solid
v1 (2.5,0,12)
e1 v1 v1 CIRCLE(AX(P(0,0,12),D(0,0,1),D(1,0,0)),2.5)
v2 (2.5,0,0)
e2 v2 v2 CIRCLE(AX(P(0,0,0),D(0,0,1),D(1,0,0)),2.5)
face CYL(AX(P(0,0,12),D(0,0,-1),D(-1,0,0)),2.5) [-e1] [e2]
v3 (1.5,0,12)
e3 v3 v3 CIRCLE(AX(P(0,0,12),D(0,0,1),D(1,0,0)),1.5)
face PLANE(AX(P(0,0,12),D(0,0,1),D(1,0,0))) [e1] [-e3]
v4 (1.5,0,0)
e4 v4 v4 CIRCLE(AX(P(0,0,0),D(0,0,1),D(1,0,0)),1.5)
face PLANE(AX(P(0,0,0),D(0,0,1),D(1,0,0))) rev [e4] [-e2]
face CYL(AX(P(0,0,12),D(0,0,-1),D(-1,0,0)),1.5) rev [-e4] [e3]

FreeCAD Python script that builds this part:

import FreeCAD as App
import Part
import Sketcher
from FreeCAD import Vector
Q = App.Units.Quantity

doc = App.newDocument("Part")
params = doc.addObject("Spreadsheet::Sheet", "Params")
for row, (alias, value) in enumerate([
    ("sketch1_diameter", "5 mm"),
    ("sketch1_diameter2", "3 mm"),
    ("pad1_length", "12 mm"),
], start=1):
    params.set(f"A{row}", alias)
    params.set(f"B{row}", "=" + value)
    params.setAlias(f"B{row}", alias)

body = doc.addObject("PartDesign::Body", "Body")

# Sketch on XY plane
sketch1 = body.newObject("Sketcher::SketchObject", "Sketch")
sketch1.AttachmentSupport = (doc.getObject("XY_Plane"), [""])
sketch1.MapMode = "FlatFace"
sketch1.addGeometry([
    Part.Circle(Vector(0, 0, 0), Vector(0, 0, 1), 2.5),
    Part.Circle(Vector(0, 0, 0), Vector(0, 0, 1), 1.5),
], False)
sketch1.addConstraint([
    Sketcher.Constraint("Coincident", 0, 3, -1, 1),
    Sketcher.Constraint("Coincident", 1, 3, -1, 1),
    Sketcher.Constraint("Diameter", 0, Q("5 mm")),
    Sketcher.Constraint("Diameter", 1, Q("3 mm")),
])
sketch1.setExpression("Constraints[2]", "Params.sketch1_diameter")
sketch1.setExpression("Constraints[3]", "Params.sketch1_diameter2")
pad1 = body.newObject("PartDesign::Pad", "Pad")
pad1.Profile = sketch1
pad1.setExpression("Length", "Params.pad1_length")

doc.recompute()
